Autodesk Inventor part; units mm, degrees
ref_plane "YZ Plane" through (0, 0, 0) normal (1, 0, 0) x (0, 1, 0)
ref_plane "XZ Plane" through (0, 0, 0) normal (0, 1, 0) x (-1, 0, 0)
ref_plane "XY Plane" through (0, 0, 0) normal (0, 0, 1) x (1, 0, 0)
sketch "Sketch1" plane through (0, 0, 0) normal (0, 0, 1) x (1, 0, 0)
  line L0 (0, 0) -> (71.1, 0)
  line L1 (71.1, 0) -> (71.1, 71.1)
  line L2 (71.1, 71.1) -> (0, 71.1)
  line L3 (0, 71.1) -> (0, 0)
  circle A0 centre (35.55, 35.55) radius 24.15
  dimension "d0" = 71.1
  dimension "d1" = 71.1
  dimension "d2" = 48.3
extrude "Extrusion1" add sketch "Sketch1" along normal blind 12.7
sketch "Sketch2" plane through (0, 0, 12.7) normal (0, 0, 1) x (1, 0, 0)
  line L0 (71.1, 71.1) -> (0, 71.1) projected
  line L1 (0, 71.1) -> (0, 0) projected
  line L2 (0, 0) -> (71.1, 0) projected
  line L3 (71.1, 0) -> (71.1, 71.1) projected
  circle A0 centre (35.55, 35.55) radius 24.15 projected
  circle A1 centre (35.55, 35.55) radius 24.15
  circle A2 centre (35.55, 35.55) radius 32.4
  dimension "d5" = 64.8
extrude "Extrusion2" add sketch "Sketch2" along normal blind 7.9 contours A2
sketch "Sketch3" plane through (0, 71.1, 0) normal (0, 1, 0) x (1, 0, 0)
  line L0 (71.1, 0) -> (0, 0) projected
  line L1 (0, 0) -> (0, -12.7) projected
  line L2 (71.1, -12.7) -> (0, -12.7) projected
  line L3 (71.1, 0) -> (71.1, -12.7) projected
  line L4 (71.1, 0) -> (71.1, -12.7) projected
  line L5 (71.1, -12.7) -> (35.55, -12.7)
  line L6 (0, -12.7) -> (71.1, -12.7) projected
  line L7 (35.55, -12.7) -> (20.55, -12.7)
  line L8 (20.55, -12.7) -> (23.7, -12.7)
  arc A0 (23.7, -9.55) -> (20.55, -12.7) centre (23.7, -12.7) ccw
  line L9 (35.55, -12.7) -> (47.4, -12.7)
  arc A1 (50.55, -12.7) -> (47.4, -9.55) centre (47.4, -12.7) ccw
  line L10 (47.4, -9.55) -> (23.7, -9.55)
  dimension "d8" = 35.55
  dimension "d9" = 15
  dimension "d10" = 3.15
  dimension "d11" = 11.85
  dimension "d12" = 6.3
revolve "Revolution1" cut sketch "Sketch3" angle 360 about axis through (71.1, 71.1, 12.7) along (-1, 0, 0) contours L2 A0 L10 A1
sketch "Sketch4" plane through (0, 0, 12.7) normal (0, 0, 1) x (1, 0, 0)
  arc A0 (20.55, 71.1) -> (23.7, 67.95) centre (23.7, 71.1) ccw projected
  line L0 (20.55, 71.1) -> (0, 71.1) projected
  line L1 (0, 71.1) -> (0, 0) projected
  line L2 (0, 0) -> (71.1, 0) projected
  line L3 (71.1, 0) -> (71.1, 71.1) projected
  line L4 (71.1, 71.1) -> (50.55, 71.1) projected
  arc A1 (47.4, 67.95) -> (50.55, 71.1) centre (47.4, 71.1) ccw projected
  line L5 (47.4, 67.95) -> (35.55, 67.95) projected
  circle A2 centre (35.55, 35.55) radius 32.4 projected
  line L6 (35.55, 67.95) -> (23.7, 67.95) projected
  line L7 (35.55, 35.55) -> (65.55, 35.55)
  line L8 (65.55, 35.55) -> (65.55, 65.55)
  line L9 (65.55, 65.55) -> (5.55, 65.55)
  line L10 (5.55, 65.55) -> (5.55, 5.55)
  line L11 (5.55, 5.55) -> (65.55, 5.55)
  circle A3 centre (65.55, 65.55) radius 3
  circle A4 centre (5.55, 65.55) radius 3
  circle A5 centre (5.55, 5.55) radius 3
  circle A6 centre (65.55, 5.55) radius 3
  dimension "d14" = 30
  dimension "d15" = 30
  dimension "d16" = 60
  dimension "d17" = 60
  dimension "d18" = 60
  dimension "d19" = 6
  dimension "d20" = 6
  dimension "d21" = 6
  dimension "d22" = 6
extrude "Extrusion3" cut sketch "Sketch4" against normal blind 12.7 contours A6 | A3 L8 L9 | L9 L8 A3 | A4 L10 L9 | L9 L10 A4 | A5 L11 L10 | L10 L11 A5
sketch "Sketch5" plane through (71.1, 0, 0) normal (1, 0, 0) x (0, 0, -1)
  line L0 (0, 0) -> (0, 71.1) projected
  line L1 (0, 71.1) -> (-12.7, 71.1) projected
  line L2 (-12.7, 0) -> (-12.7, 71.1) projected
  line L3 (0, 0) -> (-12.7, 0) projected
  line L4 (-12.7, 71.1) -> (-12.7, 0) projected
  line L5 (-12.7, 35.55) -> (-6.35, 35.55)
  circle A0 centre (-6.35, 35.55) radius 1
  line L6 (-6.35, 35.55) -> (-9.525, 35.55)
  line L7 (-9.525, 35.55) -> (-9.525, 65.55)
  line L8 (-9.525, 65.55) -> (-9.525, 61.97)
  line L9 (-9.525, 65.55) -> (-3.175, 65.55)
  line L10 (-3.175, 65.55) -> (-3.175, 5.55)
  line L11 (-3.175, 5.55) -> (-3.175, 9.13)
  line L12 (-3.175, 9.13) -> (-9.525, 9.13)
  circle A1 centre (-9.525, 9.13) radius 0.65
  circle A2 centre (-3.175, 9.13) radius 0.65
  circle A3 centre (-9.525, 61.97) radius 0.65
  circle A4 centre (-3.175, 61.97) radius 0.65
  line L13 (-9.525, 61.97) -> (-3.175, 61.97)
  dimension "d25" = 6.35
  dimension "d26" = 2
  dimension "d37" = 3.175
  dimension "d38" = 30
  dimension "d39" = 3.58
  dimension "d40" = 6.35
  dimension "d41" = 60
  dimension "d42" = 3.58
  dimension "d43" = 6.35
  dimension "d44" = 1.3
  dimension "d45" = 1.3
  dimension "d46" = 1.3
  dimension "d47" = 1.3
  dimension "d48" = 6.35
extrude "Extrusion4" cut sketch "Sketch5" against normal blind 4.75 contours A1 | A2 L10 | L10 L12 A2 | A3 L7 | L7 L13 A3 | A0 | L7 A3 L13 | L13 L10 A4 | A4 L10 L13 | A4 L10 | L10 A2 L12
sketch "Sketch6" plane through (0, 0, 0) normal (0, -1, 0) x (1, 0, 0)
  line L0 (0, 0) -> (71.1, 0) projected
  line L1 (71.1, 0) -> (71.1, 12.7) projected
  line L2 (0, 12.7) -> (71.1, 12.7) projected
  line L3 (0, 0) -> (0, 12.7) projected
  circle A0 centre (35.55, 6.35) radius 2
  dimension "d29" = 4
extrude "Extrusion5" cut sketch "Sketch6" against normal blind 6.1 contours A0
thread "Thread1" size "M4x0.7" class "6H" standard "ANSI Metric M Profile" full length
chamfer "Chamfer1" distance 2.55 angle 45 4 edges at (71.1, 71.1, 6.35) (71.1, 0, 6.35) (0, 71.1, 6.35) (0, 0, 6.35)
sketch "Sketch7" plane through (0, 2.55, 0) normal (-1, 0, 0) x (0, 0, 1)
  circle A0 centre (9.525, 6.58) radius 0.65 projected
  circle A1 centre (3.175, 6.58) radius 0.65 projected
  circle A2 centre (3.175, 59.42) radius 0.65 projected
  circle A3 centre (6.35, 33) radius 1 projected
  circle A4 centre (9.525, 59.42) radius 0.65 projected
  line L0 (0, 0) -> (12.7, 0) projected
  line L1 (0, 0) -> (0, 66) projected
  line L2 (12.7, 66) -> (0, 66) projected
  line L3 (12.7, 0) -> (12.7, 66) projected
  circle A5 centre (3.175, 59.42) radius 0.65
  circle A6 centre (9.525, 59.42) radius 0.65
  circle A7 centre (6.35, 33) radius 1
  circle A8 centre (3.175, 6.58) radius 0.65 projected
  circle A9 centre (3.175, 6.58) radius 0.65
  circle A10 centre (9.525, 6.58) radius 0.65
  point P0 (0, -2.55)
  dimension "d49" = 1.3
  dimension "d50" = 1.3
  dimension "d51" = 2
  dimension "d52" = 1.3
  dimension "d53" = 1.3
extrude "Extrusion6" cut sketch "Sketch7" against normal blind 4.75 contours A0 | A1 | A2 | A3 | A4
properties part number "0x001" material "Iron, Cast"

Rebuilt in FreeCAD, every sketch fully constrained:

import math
import FreeCAD as App
import Part
import Sketcher
from FreeCAD import Vector
Q = App.Units.Quantity


def edges_at(feature, points):
    """Names of the edges that pass closest to the given points."""
    edges = feature.Shape.Edges
    near = lambda p: min(range(len(edges)), key=lambda i: edges[i].distToShape(Part.Vertex(*p))[0])
    return sorted({f"Edge{near(p) + 1}" for p in points})


def add_polygon(sketch, points):
    """Adds a closed chain of lines whose ends are joined by coincident constraints."""
    first, n = sketch.GeometryCount, len(points)
    for a, b in zip(points, points[1:] + points[:1]):
        sketch.addGeometry(Part.LineSegment(App.Vector(*a, 0), App.Vector(*b, 0)), False)
    for i in range(n):
        sketch.addConstraint(Sketcher.Constraint("Coincident", first + i, 2, first + (i + 1) % n, 1))

doc = App.newDocument("Part")
body = doc.addObject("PartDesign::Body", "Body")

sketch1 = doc.addObject("Sketcher::SketchObject", "Sketch")
body.addObject(sketch1)
sketch1.AttachmentSupport = (doc.XY_Plane, [""])
sketch1.MapMode = "FlatFace"
add_polygon(sketch1, [(0, 71), (0, 0), (71, 0), (71, 71)])
sketch1.addGeometry(Part.Circle(Vector(36, 36, 0), Vector(0, 0, 1), 24), False)
sketch1.addConstraint([
    Sketcher.Constraint("Vertical", 0),
    Sketcher.Constraint("Horizontal", 1),
    Sketcher.Constraint("Vertical", 2),
    Sketcher.Constraint("Horizontal", 3),
    Sketcher.Constraint("Coincident", 0, 2, -1, 1),
    Sketcher.Constraint("Equal", 3, 0),
    Sketcher.Constraint("Diameter", 4, Q("48.3 mm")),
    Sketcher.Constraint("DistanceX", 1, 1, 1, 2, Q("71.1 mm")),
    Sketcher.Constraint("DistanceX", -1, 1, 4, 3, Q("35.55 mm")),
    Sketcher.Constraint("DistanceY", -1, 1, 4, 3, Q("35.55 mm")),
])
pad1 = doc.addObject("PartDesign::Pad", "Pad")
body.addObject(pad1)
pad1.Profile = sketch1
pad1.Length = 12.7

sketch2 = doc.addObject("Sketcher::SketchObject", "Sketch001")
body.addObject(sketch2)
sketch2.AttachmentSupport = (doc.XY_Plane, [""])
sketch2.MapMode = "FlatFace"
sketch2.AttachmentOffset = App.Placement(Vector(0, 0, 12.7), App.Rotation())
sketch2.addGeometry([
    Part.Circle(Vector(36, 36, 0), Vector(0, 0, 1), 32),
    Part.Circle(Vector(36, 36, 0), Vector(0, 0, 1), 24),
], False)
sketch2.addConstraint([
    Sketcher.Constraint("Coincident", 1, 3, 0, 3),
    Sketcher.Constraint("Diameter", 0, Q("64.8 mm")),
    Sketcher.Constraint("Diameter", 1, Q("48.3 mm")),
    Sketcher.Constraint("DistanceX", -1, 1, 0, 3, Q("35.55 mm")),
    Sketcher.Constraint("DistanceY", -1, 1, 0, 3, Q("35.55 mm")),
])
pad2 = doc.addObject("PartDesign::Pad", "Pad001")
body.addObject(pad2)
pad2.Profile = sketch2
pad2.Length = 7.9

sketch3 = doc.addObject("Sketcher::SketchObject", "Sketch002")
body.addObject(sketch3)
sketch3.AttachmentSupport = (doc.XZ_Plane, [""])
sketch3.MapMode = "FlatFace"
sketch3.AttachmentOffset = App.Placement(Vector(0, 0, -71.1), App.Rotation())
sketch3.addGeometry([
    Part.LineSegment(Vector(20.6, 12.7, 0), Vector(50.5, 12.7, 0)),
    Part.ArcOfCircle(Part.Circle(Vector(47.4, 12.7, 0), Vector(0, 0, 1), 3.1), math.radians(-90), math.radians(0)),
    Part.LineSegment(Vector(47.4, 9.6, 0), Vector(23.7, 9.6, 0)),
    Part.ArcOfCircle(Part.Circle(Vector(23.7, 12.7, 0), Vector(0, 0, 1), 3.1), math.radians(180), math.radians(270)),
], False)
sketch3.addGeometry(Part.LineSegment(Vector(50.5, 12.7, 0), Vector(20.6, 12.7, 0)), True)
sketch3.addConstraint([
    Sketcher.Constraint("Coincident", 0, 2, 1, 2),
    Sketcher.Constraint("Tangent", 1, 1, 2, 1),
    Sketcher.Constraint("Tangent", 2, 2, 3, 2),
    Sketcher.Constraint("Coincident", 3, 1, 0, 1),
    Sketcher.Constraint("Horizontal", 0),
    Sketcher.Constraint("Horizontal", 2),
    Sketcher.Constraint("Horizontal", 4),
    Sketcher.Constraint("Coincident", 4, 1, 0, 2),
    Sketcher.Constraint("Equal", 1, 3),
    Sketcher.Constraint("Horizontal", 3, 3, 0, 2),
    Sketcher.Constraint("Equal", 0, 4),
    Sketcher.Constraint("Radius", 1, Q("3.15 mm")),
    Sketcher.Constraint("DistanceX", 0, 1, 0, 2, Q("30 mm")),
    Sketcher.Constraint("DistanceX", -1, 1, 1, 3, Q("47.4 mm")),
    Sketcher.Constraint("DistanceY", -1, 1, 1, 3, Q("12.7 mm")),
])
groove = doc.addObject("PartDesign::Groove", "Groove")
body.addObject(groove)
groove.Profile = sketch3
groove.ReferenceAxis = (sketch3, ["Axis0"])
groove.Angle = 360

sketch4 = doc.addObject("Sketcher::SketchObject", "Sketch003")
body.addObject(sketch4)
sketch4.AttachmentSupport = (doc.XY_Plane, [""])
sketch4.MapMode = "FlatFace"
sketch4.AttachmentOffset = App.Placement(Vector(0, 0, 12.7), App.Rotation())
sketch4.addGeometry([
    Part.Circle(Vector(65.5, 5.5, 0), Vector(0, 0, 1), 3),
    Part.Circle(Vector(65.5, 65.5, 0), Vector(0, 0, 1), 3),
    Part.Circle(Vector(5.5, 65.5, 0), Vector(0, 0, 1), 3),
    Part.Circle(Vector(5.5, 5.5, 0), Vector(0, 0, 1), 3),
], False)
sketch4.addConstraint([
    Sketcher.Constraint("Equal", 0, 1),
    Sketcher.Constraint("Equal", 1, 2),
    Sketcher.Constraint("Equal", 2, 3),
    Sketcher.Constraint("Horizontal", 1, 3, 2, 3),
    Sketcher.Constraint("Horizontal", 0, 3, 3, 3),
    Sketcher.Constraint("Vertical", 0, 3, 1, 3),
    Sketcher.Constraint("Vertical", 2, 3, 3, 3),
    Sketcher.Constraint("Diameter", 0, Q("6 mm")),
    Sketcher.Constraint("DistanceY", 0, 3, 1, 3, Q("60 mm")),
    Sketcher.Constraint("DistanceX", 2, 3, 1, 3, Q("60 mm")),
    Sketcher.Constraint("DistanceX", -1, 1, 0, 3, Q("65.55 mm")),
    Sketcher.Constraint("DistanceY", -1, 1, 0, 3, Q("5.55 mm")),
])
pocket1 = doc.addObject("PartDesign::Pocket", "Pocket")
body.addObject(pocket1)
pocket1.Profile = sketch4
pocket1.Length = 12.7

sketch5 = doc.addObject("Sketcher::SketchObject", "Sketch004")
body.addObject(sketch5)
sketch5.AttachmentSupport = (doc.YZ_Plane, [""])
sketch5.MapMode = "FlatFace"
sketch5.AttachmentOffset = App.Placement(Vector(0, 0, 71.1), App.Rotation())
sketch5.addGeometry([
    Part.Circle(Vector(9.1, 9.5, 0), Vector(0, 0, 1), 0.7),
    Part.Circle(Vector(9.1, 3.2, 0), Vector(0, 0, 1), 0.7),
    Part.Circle(Vector(62, 9.5, 0), Vector(0, 0, 1), 0.7),
    Part.Circle(Vector(35.5, 6.3, 0), Vector(0, 0, 1), 1),
    Part.Circle(Vector(62, 3.2, 0), Vector(0, 0, 1), 0.7),
], False)
sketch5.addConstraint([
    Sketcher.Constraint("Equal", 0, 1),
    Sketcher.Constraint("Equal", 1, 2),
    Sketcher.Constraint("Equal", 2, 4),
    Sketcher.Constraint("Horizontal", 0, 3, 2, 3),
    Sketcher.Constraint("Horizontal", 1, 3, 4, 3),
    Sketcher.Constraint("Vertical", 0, 3, 1, 3),
    Sketcher.Constraint("Vertical", 2, 3, 4, 3),
    Sketcher.Constraint("Diameter", 3, Q("2 mm")),
    Sketcher.Constraint("Diameter", 0, Q("1.3 mm")),
    Sketcher.Constraint("DistanceY", -1, 1, 3, 3, Q("6.35 mm")),
    Sketcher.Constraint("DistanceY", 1, 3, 0, 3, Q("6.35 mm")),
    Sketcher.Constraint("DistanceY", -1, 1, 1, 3, Q("3.175 mm")),
    Sketcher.Constraint("DistanceX", -1, 1, 0, 3, Q("9.13 mm")),
    Sketcher.Constraint("DistanceX", -1, 1, 2, 3, Q("61.97 mm")),
    Sketcher.Constraint("DistanceX", -1, 1, 3, 3, Q("35.55 mm")),
])
pocket2 = doc.addObject("PartDesign::Pocket", "Pocket001")
body.addObject(pocket2)
pocket2.Profile = sketch5
pocket2.Length = 4.75

sketch6 = doc.addObject("Sketcher::SketchObject", "Sketch005")
body.addObject(sketch6)
sketch6.AttachmentSupport = (doc.XZ_Plane, [""])
sketch6.MapMode = "FlatFace"
sketch6.addGeometry(Part.Circle(Vector(35.5, 6.3, 0), Vector(0, 0, 1), 2), False)
sketch6.addConstraint([
    Sketcher.Constraint("Diameter", 0, Q("4 mm")),
    Sketcher.Constraint("DistanceX", -1, 1, 0, 3, Q("35.55 mm")),
    Sketcher.Constraint("DistanceY", -1, 1, 0, 3, Q("6.35 mm")),
])
pocket3 = doc.addObject("PartDesign::Pocket", "Pocket002")
body.addObject(pocket3)
pocket3.Profile = sketch6
pocket3.Length = 6.1
doc.recompute()

chamfer = doc.addObject("PartDesign::Chamfer", "Chamfer")
body.addObject(chamfer)
chamfer.Base = (pocket3, edges_at(pocket3, [
    (71.1, 71.1, 6.35),
    (71.1, 0, 6.35),
    (0, 71.1, 6.35),
    (0, 0, 6.35),
]))
chamfer.Size = 2.55

sketch7 = doc.addObject("Sketcher::SketchObject", "Sketch006")
body.addObject(sketch7)
sketch7.AttachmentSupport = (doc.YZ_Plane, [""])
sketch7.MapMode = "FlatFace"
sketch7.addGeometry([
    Part.Circle(Vector(9.1, 9.5, 0), Vector(0, 0, 1), 0.7),
    Part.Circle(Vector(9.1, 3.2, 0), Vector(0, 0, 1), 0.7),
    Part.Circle(Vector(62, 3.2, 0), Vector(0, 0, 1), 0.7),
    Part.Circle(Vector(35.5, 6.3, 0), Vector(0, 0, 1), 1),
    Part.Circle(Vector(62, 9.5, 0), Vector(0, 0, 1), 0.7),
], False)
sketch7.addConstraint([
    Sketcher.Constraint("Equal", 0, 1),
    Sketcher.Constraint("Equal", 1, 2),
    Sketcher.Constraint("Equal", 2, 4),
    Sketcher.Constraint("Horizontal", 1, 3, 2, 3),
    Sketcher.Constraint("Horizontal", 0, 3, 4, 3),
    Sketcher.Constraint("Vertical", 0, 3, 1, 3),
    Sketcher.Constraint("Vertical", 2, 3, 4, 3),
    Sketcher.Constraint("Diameter", 3, Q("2 mm")),
    Sketcher.Constraint("Diameter", 0, Q("1.3 mm")),
    Sketcher.Constraint("DistanceX", -1, 1, 0, 3, Q("9.13 mm")),
    Sketcher.Constraint("DistanceX", -1, 1, 2, 3, Q("61.97 mm")),
    Sketcher.Constraint("DistanceX", -1, 1, 3, 3, Q("35.55 mm")),
    Sketcher.Constraint("DistanceY", -1, 1, 3, 3, Q("6.35 mm")),
    Sketcher.Constraint("DistanceY", 1, 3, 0, 3, Q("6.35 mm")),
    Sketcher.Constraint("DistanceY", -1, 1, 0, 3, Q("9.525 mm")),
])
pocket4 = doc.addObject("PartDesign::Pocket", "Pocket003")
body.addObject(pocket4)
pocket4.Profile = sketch7
pocket4.Length = 4.75
pocket4.Reversed = True

doc.recompute()
